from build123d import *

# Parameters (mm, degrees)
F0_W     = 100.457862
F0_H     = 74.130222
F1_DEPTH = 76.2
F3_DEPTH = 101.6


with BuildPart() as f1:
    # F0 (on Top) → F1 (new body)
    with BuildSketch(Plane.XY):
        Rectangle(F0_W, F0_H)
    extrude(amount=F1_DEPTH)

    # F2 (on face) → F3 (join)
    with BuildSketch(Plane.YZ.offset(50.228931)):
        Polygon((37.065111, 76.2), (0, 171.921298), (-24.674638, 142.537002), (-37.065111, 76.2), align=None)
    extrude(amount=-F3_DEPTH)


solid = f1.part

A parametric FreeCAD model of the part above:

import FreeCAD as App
import Part
import Sketcher

V = App.Vector
Q = App.Units.Quantity

doc = App.newDocument("Part")
body = doc.addObject("PartDesign::Body", "Body")

sketch1 = body.newObject("Sketcher::SketchObject", "Sketch")
sketch1.AttachmentSupport = (doc.getObject("XY_Plane"), [""])
sketch1.MapMode = "FlatFace"
sketch1.addGeometry([
    Part.LineSegment(V(-50, 37, 0), V(-50, -37, 0)),
    Part.LineSegment(V(-50, -37, 0), V(50, -37, 0)),
    Part.LineSegment(V(50, -37, 0), V(50, 37, 0)),
    Part.LineSegment(V(50, 37, 0), V(-50, 37, 0)),
], False)
sketch1.addConstraint([
    Sketcher.Constraint("Coincident", 0, 2, 1, 1),
    Sketcher.Constraint("Coincident", 1, 2, 2, 1),
    Sketcher.Constraint("Coincident", 2, 2, 3, 1),
    Sketcher.Constraint("Coincident", 3, 2, 0, 1),
    Sketcher.Constraint("Vertical", 0),
    Sketcher.Constraint("Horizontal", 1),
    Sketcher.Constraint("Vertical", 2),
    Sketcher.Constraint("Horizontal", 3),
    Sketcher.Constraint("Symmetric", 0, 2, 2, 2, -1, 1),
    Sketcher.Constraint("DistanceX", 1, 1, 1, 2, 100.457862),
    Sketcher.Constraint("DistanceY", 0, 2, 0, 1, 74.130222),
])
pad1 = body.newObject("PartDesign::Pad", "Pad")
pad1.Profile = sketch1
pad1.Length = Q("3 in")

sketch2 = body.newObject("Sketcher::SketchObject", "Sketch001")
sketch2.AttachmentSupport = (doc.getObject("YZ_Plane"), [""])
sketch2.MapMode = "FlatFace"
sketch2.AttachmentOffset = App.Placement(V(0, 0, 50.228931), App.Rotation())
sketch2.addGeometry([
    Part.LineSegment(V(37, 76, 0), V(0, 172, 0)),
    Part.LineSegment(V(0, 172, 0), V(-25, 143, 0)),
    Part.LineSegment(V(-25, 143, 0), V(-37, 76, 0)),
    Part.LineSegment(V(-37, 76, 0), V(37, 76, 0)),
], False)
sketch2.addConstraint([
    Sketcher.Constraint("Coincident", 0, 2, 1, 1),
    Sketcher.Constraint("Coincident", 1, 2, 2, 1),
    Sketcher.Constraint("Coincident", 2, 2, 3, 1),
    Sketcher.Constraint("Coincident", 3, 2, 0, 1),
    Sketcher.Constraint("Horizontal", 3),
    Sketcher.Constraint("PointOnObject", 0, 2, -2),
    Sketcher.Constraint("DistanceY", -1, 1, 2, 2, Q("3 in")),
    Sketcher.Constraint("DistanceY", -1, 1, 0, 2, 171.921298),
    Sketcher.Constraint("DistanceY", -1, 1, 1, 2, 142.537002),
    Sketcher.Constraint("Distance", 1, 38.370231),
    Sketcher.Constraint("DistanceX", 3, 1, 3, 2, 74.130222),
    Sketcher.Constraint("DistanceX", 2, 2, -1, 1, 37.065111),
])
pad2 = body.newObject("PartDesign::Pad", "Pad001")
pad2.Profile = sketch2
pad2.Length = Q("4 in")
pad2.Reversed = True

doc.recompute()
